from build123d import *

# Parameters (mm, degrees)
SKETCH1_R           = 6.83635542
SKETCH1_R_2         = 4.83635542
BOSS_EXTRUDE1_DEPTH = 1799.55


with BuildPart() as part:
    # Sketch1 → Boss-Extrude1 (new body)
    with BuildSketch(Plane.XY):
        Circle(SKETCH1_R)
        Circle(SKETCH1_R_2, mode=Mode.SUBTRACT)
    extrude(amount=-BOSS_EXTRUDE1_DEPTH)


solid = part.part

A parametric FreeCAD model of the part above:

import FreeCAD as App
import Part
import Sketcher

doc = App.newDocument("Part")
body = doc.addObject("PartDesign::Body", "Body")

# Sketch on XY plane
sketch1 = doc.addObject("Sketcher::SketchObject", "Sketch")
body.addObject(sketch1)
sketch1.AttachmentSupport = (doc.XY_Plane, [""])
sketch1.MapMode = "FlatFace"
sketch1.addGeometry(Part.Circle(App.Vector(0, 0, 0), App.Vector(0, 0, 1), 6.8), False)
sketch1.addGeometry(Part.Circle(App.Vector(0, 0, 0), App.Vector(0, 0, 1), 4.8), False)
sketch1.addConstraint(Sketcher.Constraint("Coincident", 0, 3, -1, 1))
sketch1.addConstraint(Sketcher.Constraint("Coincident", 1, 3, -1, 1))
sketch1.addConstraint(Sketcher.Constraint("Diameter", 0, 13.672711))
sketch1.addConstraint(Sketcher.Constraint("Diameter", 1, 9.672711))
pad1 = doc.addObject("PartDesign::Pad", "Pad")
body.addObject(pad1)
pad1.Profile = sketch1
pad1.Length = 1799.55
pad1.Reversed = True

doc.recompute()
